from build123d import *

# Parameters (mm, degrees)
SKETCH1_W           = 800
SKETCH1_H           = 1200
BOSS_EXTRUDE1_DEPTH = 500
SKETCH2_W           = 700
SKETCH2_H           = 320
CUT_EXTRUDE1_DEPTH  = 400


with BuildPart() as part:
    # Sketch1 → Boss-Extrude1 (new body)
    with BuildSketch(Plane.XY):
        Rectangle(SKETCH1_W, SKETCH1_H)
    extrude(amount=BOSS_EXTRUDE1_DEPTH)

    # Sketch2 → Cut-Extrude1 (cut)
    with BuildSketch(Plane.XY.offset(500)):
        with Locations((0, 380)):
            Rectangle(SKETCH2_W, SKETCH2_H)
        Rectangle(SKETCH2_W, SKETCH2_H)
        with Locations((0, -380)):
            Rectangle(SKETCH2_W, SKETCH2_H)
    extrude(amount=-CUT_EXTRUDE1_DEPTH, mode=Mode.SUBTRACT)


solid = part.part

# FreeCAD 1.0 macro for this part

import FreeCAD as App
import Part
import Sketcher

V = App.Vector

doc = App.newDocument("Part")
body = doc.addObject("PartDesign::Body", "Body")

sketch1 = body.newObject("Sketcher::SketchObject", "Sketch")
sketch1.AttachmentSupport = (doc.getObject("XY_Plane"), [""])
sketch1.MapMode = "FlatFace"
sketch1.addGeometry(Part.LineSegment(V(-400, 600, 0), V(-400, -600, 0)), False)
sketch1.addGeometry(Part.LineSegment(V(-400, -600, 0), V(400, -600, 0)), False)
sketch1.addGeometry(Part.LineSegment(V(400, -600, 0), V(400, 600, 0)), False)
sketch1.addGeometry(Part.LineSegment(V(400, 600, 0), V(-400, 600, 0)), False)
sketch1.addConstraint(Sketcher.Constraint("Coincident", 0, 2, 1, 1))
sketch1.addConstraint(Sketcher.Constraint("Coincident", 1, 2, 2, 1))
sketch1.addConstraint(Sketcher.Constraint("Coincident", 2, 2, 3, 1))
sketch1.addConstraint(Sketcher.Constraint("Coincident", 3, 2, 0, 1))
sketch1.addConstraint(Sketcher.Constraint("Vertical", 0))
sketch1.addConstraint(Sketcher.Constraint("Horizontal", 1))
sketch1.addConstraint(Sketcher.Constraint("Vertical", 2))
sketch1.addConstraint(Sketcher.Constraint("Horizontal", 3))
sketch1.addConstraint(Sketcher.Constraint("Symmetric", 0, 2, 2, 2, -1, 1))
sketch1.addConstraint(Sketcher.Constraint("DistanceX", 1, 1, 1, 2, 800.0))
sketch1.addConstraint(Sketcher.Constraint("DistanceY", 0, 2, 0, 1, 1200.0))
pad1 = body.newObject("PartDesign::Pad", "Pad")
pad1.Profile = sketch1
pad1.Length = 500

sketch2 = body.newObject("Sketcher::SketchObject", "Sketch001")
sketch2.AttachmentSupport = (doc.getObject("XY_Plane"), [""])
sketch2.MapMode = "FlatFace"
sketch2.AttachmentOffset = App.Placement(V(0, 0, 500), App.Rotation())
sketch2.addGeometry(Part.LineSegment(V(-350, 540, 0), V(-350, 220, 0)), False)
sketch2.addGeometry(Part.LineSegment(V(-350, 220, 0), V(350, 220, 0)), False)
sketch2.addGeometry(Part.LineSegment(V(350, 220, 0), V(350, 540, 0)), False)
sketch2.addGeometry(Part.LineSegment(V(350, 540, 0), V(-350, 540, 0)), False)
sketch2.addGeometry(Part.LineSegment(V(-350, 160, 0), V(-350, -160, 0)), False)
sketch2.addGeometry(Part.LineSegment(V(-350, -160, 0), V(350, -160, 0)), False)
sketch2.addGeometry(Part.LineSegment(V(350, -160, 0), V(350, 160, 0)), False)
sketch2.addGeometry(Part.LineSegment(V(350, 160, 0), V(-350, 160, 0)), False)
sketch2.addGeometry(Part.LineSegment(V(-350, -220, 0), V(-350, -540, 0)), False)
sketch2.addGeometry(Part.LineSegment(V(-350, -540, 0), V(350, -540, 0)), False)
sketch2.addGeometry(Part.LineSegment(V(350, -540, 0), V(350, -220, 0)), False)
sketch2.addGeometry(Part.LineSegment(V(350, -220, 0), V(-350, -220, 0)), False)
sketch2.addConstraint(Sketcher.Constraint("Coincident", 0, 2, 1, 1))
sketch2.addConstraint(Sketcher.Constraint("Coincident", 1, 2, 2, 1))
sketch2.addConstraint(Sketcher.Constraint("Coincident", 2, 2, 3, 1))
sketch2.addConstraint(Sketcher.Constraint("Coincident", 3, 2, 0, 1))
sketch2.addConstraint(Sketcher.Constraint("Coincident", 4, 2, 5, 1))
sketch2.addConstraint(Sketcher.Constraint("Coincident", 5, 2, 6, 1))
sketch2.addConstraint(Sketcher.Constraint("Coincident", 6, 2, 7, 1))
sketch2.addConstraint(Sketcher.Constraint("Coincident", 7, 2, 4, 1))
sketch2.addConstraint(Sketcher.Constraint("Coincident", 8, 2, 9, 1))
sketch2.addConstraint(Sketcher.Constraint("Coincident", 9, 2, 10, 1))
sketch2.addConstraint(Sketcher.Constraint("Coincident", 10, 2, 11, 1))
sketch2.addConstraint(Sketcher.Constraint("Coincident", 11, 2, 8, 1))
sketch2.addConstraint(Sketcher.Constraint("Vertical", 0))
sketch2.addConstraint(Sketcher.Constraint("Horizontal", 1))
sketch2.addConstraint(Sketcher.Constraint("Vertical", 2))
sketch2.addConstraint(Sketcher.Constraint("Horizontal", 3))
sketch2.addConstraint(Sketcher.Constraint("Vertical", 4))
sketch2.addConstraint(Sketcher.Constraint("Horizontal", 5))
sketch2.addConstraint(Sketcher.Constraint("Vertical", 6))
sketch2.addConstraint(Sketcher.Constraint("Horizontal", 7))
sketch2.addConstraint(Sketcher.Constraint("Vertical", 8))
sketch2.addConstraint(Sketcher.Constraint("Horizontal", 9))
sketch2.addConstraint(Sketcher.Constraint("Vertical", 10))
sketch2.addConstraint(Sketcher.Constraint("Horizontal", 11))
sketch2.addConstraint(Sketcher.Constraint("Symmetric", 4, 2, 6, 2, -1, 1))
sketch2.addConstraint(Sketcher.Constraint("Symmetric", 2, 2, 8, 2, -1, 1))
sketch2.addConstraint(Sketcher.Constraint("Symmetric", 0, 2, 10, 2, -1, 1))
sketch2.addConstraint(Sketcher.Constraint("Vertical", 3, 2, 4, 2))
sketch2.addConstraint(Sketcher.Constraint("Vertical", 2, 2, 5, 2))
sketch2.addConstraint(Sketcher.Constraint("Equal", 2, 4))
sketch2.addConstraint(Sketcher.Constraint("DistanceX", 1, 1, 1, 2, 700.0))
sketch2.addConstraint(Sketcher.Constraint("DistanceY", 0, 2, 0, 1, 320.0))
sketch2.addConstraint(Sketcher.Constraint("DistanceY", -1, 1, 0, 2, 220.0))
pocket1 = body.newObject("PartDesign::Pocket", "Pocket")
pocket1.Profile = sketch2
pocket1.Length = 400

doc.recompute()
